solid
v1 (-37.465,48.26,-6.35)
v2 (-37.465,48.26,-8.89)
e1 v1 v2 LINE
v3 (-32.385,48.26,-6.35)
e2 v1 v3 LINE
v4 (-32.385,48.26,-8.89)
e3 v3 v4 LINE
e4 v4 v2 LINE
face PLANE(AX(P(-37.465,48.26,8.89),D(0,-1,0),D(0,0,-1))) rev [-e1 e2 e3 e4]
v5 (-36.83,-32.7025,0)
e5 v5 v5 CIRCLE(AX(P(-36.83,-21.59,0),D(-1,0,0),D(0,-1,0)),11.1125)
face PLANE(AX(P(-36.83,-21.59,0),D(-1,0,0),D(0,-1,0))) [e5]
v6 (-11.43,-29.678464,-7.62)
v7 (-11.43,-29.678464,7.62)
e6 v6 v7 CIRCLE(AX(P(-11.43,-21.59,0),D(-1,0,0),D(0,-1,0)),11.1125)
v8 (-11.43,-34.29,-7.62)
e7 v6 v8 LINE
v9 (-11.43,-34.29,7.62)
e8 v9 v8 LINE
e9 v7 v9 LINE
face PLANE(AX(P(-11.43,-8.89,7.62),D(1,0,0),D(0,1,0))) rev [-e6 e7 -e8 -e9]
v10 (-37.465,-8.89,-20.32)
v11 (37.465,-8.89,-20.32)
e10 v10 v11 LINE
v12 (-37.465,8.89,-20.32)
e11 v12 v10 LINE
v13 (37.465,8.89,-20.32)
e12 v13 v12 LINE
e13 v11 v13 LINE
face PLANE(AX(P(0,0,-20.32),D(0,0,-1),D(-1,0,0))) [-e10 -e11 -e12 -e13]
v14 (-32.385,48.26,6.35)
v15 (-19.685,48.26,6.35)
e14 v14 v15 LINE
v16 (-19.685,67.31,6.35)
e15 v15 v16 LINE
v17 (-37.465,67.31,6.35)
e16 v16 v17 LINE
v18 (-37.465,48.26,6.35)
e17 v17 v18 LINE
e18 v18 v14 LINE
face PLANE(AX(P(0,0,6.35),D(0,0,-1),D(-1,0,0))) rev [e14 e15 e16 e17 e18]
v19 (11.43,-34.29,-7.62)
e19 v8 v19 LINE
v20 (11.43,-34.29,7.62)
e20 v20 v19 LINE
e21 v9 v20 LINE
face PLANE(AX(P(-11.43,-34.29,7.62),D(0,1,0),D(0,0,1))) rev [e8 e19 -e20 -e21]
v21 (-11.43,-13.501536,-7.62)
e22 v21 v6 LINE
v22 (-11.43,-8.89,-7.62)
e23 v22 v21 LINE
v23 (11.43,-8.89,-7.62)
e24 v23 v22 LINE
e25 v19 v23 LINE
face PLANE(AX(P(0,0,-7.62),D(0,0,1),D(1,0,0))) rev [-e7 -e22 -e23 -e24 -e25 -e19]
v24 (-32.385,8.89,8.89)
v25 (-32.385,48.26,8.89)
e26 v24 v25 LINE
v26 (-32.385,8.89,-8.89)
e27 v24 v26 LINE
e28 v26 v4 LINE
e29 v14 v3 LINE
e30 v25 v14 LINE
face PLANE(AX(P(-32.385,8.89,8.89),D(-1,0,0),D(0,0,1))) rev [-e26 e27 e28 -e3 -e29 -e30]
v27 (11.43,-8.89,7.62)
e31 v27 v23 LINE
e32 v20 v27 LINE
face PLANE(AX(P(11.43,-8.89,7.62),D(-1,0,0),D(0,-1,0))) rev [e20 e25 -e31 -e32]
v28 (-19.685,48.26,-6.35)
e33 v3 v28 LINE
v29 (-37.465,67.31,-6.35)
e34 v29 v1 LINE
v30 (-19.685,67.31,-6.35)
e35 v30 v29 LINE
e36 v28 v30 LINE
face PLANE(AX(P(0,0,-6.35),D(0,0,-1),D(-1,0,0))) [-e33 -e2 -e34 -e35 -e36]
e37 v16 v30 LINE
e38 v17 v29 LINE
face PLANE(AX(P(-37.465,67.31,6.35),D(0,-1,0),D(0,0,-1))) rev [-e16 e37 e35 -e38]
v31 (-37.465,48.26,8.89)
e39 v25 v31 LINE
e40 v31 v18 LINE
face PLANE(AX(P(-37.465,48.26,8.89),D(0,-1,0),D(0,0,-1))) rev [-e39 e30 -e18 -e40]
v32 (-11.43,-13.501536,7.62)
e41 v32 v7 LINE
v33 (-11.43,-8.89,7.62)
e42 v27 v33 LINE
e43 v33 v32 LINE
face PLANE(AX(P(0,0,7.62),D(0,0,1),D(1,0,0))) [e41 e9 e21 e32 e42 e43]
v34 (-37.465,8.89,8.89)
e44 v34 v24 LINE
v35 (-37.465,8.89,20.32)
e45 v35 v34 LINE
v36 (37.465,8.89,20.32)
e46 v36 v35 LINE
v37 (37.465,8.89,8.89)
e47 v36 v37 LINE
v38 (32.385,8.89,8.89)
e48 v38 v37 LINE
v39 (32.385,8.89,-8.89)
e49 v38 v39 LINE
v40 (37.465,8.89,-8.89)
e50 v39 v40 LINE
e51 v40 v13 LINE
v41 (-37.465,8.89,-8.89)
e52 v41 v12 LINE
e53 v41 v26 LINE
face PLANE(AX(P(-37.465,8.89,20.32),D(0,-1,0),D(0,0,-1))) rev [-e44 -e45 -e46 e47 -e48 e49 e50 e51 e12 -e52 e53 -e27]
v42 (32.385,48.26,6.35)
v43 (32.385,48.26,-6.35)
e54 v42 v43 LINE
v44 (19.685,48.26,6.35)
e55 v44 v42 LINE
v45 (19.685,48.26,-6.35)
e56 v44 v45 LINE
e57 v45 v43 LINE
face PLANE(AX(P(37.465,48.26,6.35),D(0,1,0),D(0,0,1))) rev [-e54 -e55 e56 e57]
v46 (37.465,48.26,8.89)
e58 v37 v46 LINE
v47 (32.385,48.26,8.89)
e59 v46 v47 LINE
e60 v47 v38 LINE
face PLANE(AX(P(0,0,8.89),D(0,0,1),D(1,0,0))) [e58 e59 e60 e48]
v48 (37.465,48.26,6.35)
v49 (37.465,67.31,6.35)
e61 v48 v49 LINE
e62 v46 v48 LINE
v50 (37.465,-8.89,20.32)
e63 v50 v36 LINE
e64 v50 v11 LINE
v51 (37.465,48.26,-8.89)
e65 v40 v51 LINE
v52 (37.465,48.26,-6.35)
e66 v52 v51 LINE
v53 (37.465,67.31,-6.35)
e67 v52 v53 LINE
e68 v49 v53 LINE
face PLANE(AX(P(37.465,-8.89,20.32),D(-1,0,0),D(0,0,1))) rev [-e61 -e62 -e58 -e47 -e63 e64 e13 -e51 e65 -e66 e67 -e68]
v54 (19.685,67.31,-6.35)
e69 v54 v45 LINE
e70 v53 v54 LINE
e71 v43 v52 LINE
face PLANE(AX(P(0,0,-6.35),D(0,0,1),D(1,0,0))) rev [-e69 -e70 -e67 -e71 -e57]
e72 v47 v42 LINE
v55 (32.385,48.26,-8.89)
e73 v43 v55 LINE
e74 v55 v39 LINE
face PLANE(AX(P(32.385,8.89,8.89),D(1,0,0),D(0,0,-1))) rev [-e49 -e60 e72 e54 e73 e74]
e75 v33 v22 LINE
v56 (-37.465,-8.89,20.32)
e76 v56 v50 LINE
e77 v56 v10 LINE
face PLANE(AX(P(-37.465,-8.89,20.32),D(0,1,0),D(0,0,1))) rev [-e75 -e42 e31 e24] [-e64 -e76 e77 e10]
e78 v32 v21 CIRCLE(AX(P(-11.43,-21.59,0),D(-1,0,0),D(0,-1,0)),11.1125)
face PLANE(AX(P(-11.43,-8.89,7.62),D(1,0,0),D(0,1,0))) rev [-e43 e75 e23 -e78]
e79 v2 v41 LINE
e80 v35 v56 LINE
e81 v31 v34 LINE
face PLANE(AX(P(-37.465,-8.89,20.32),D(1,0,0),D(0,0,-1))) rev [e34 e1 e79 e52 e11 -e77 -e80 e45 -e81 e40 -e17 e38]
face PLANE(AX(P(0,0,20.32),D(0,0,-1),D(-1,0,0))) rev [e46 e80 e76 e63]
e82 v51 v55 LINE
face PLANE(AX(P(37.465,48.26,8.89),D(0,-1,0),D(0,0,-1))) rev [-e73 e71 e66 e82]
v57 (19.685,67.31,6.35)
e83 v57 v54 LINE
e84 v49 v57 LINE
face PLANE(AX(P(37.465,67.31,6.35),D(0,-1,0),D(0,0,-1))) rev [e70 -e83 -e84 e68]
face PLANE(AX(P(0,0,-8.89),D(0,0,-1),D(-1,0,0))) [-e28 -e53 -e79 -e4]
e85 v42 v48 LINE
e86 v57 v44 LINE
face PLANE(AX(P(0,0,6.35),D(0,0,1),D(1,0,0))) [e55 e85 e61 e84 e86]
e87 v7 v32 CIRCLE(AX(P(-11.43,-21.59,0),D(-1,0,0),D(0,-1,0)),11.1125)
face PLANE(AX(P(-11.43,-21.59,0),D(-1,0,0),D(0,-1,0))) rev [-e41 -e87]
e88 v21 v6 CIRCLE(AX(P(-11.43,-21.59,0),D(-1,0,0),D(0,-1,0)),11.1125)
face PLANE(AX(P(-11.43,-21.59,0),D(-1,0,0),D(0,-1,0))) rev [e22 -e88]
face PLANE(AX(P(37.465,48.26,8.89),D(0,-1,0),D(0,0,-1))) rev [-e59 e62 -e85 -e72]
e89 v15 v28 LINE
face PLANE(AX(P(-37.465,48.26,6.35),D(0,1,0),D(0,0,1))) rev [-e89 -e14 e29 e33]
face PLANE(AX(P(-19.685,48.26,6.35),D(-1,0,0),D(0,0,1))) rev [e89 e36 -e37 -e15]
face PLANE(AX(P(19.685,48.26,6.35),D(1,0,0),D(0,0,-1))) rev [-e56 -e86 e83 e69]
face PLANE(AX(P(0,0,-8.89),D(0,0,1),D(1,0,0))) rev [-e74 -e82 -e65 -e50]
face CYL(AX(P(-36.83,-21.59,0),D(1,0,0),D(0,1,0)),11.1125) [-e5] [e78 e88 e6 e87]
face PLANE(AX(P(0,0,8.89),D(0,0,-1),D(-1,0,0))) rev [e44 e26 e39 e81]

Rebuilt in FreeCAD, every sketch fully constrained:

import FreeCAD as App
import Part
import Sketcher
Q = App.Units.Quantity


def add_polygon(sketch, points):
    """Adds a closed chain of lines whose ends are joined by coincident constraints."""
    first, n = sketch.GeometryCount, len(points)
    for a, b in zip(points, points[1:] + points[:1]):
        sketch.addGeometry(Part.LineSegment(App.Vector(*a, 0), App.Vector(*b, 0)), False)
    for i in range(n):
        sketch.addConstraint(Sketcher.Constraint("Coincident", first + i, 2, first + (i + 1) % n, 1))

doc = App.newDocument("Part")
params = doc.addObject("Spreadsheet::Sheet", "Params")
for row, (alias, value) in enumerate([
    ("sketch1_height", "0.7 in"),
    ("sketch1_width", "2.95 in"),
    ("pad1_length", "1.6 in"),
    ("sketch2_width", "0.2 in"),
    ("sketch2_height", "1.55 in"),
    ("pad2_length", "0.7 in"),
    ("sketch3_width", "0.7 in"),
    ("sketch3_height", "0.75 in"),
    ("pad3_length", "0.5 in"),
    ("sketch4_height", "1 in"),
    ("sketch4_width", "0.9 in"),
    ("pad4_length", "0.6 in"),
    ("sketch5_diameter", "0.875 in"),
    ("pad5_length", "1 in"),
], start=1):
    params.set(f"A{row}", alias)
    params.set(f"B{row}", "=" + value)
    params.setAlias(f"B{row}", alias)

body = doc.addObject("PartDesign::Body", "Body")

# Sketch on XY plane
sketch1 = doc.addObject("Sketcher::SketchObject", "Sketch")
body.addObject(sketch1)
sketch1.AttachmentSupport = (doc.XY_Plane, [""])
sketch1.MapMode = "FlatFace"
add_polygon(sketch1, [(-37, 9), (-37, -9), (37, -9), (37, 9)])  # lines 0-3
sketch1.addConstraint(Sketcher.Constraint("Vertical", 0))
sketch1.addConstraint(Sketcher.Constraint("Horizontal", 1))
sketch1.addConstraint(Sketcher.Constraint("Vertical", 2))
sketch1.addConstraint(Sketcher.Constraint("Horizontal", 3))
sketch1.addConstraint(Sketcher.Constraint("Symmetric", 0, 2, 2, 2, -1, 1))
sketch1.addConstraint(Sketcher.Constraint("DistanceY", 0, 2, 0, 1, Q("0.7 in")))
sketch1.addConstraint(Sketcher.Constraint("DistanceX", 1, 1, 1, 2, Q("2.95 in")))
sketch1.setExpression("Constraints[9]", "Params.sketch1_height")
sketch1.setExpression("Constraints[10]", "Params.sketch1_width")
pad1 = doc.addObject("PartDesign::Pad", "Pad")
body.addObject(pad1)
pad1.Profile = sketch1
pad1.setExpression("Length", "Params.pad1_length")
pad1.Midplane = True

# Sketch on XY plane
sketch2 = doc.addObject("Sketcher::SketchObject", "Sketch001")
body.addObject(sketch2)
sketch2.AttachmentSupport = (doc.XY_Plane, [""])
sketch2.MapMode = "FlatFace"
add_polygon(sketch2, [(-37, 48), (-37, 9), (-32, 9), (-32, 48)])  # lines 0-3
add_polygon(sketch2, [(32, 48), (32, 9), (37, 9), (37, 48)])  # lines 4-7
sketch2.addConstraint(Sketcher.Constraint("Vertical", 0))
sketch2.addConstraint(Sketcher.Constraint("Horizontal", 1))
sketch2.addConstraint(Sketcher.Constraint("Vertical", 2))
sketch2.addConstraint(Sketcher.Constraint("Horizontal", 3))
sketch2.addConstraint(Sketcher.Constraint("Vertical", 4))
sketch2.addConstraint(Sketcher.Constraint("Horizontal", 5))
sketch2.addConstraint(Sketcher.Constraint("Vertical", 6))
sketch2.addConstraint(Sketcher.Constraint("Horizontal", 7))
sketch2.addConstraint(Sketcher.Constraint("Symmetric", 1, 2, 4, 2, -2))
sketch2.addConstraint(Sketcher.Constraint("Symmetric", 3, 2, 6, 2, -2))
sketch2.addConstraint(Sketcher.Constraint("DistanceX", 1, 1, 1, 2, Q("0.2 in")))
sketch2.addConstraint(Sketcher.Constraint("DistanceY", 0, 2, 0, 1, Q("1.55 in")))
sketch2.addConstraint(Sketcher.Constraint("DistanceY", -1, 1, 2, 2, Q("1.9 in")))
sketch2.addConstraint(Sketcher.Constraint("DistanceX", 1, 2, 4, 2, Q("2.55 in")))
sketch2.setExpression("Constraints[18]", "Params.sketch2_width")
sketch2.setExpression("Constraints[19]", "Params.sketch2_height")
pad2 = doc.addObject("PartDesign::Pad", "Pad001")
body.addObject(pad2)
pad2.Profile = sketch2
pad2.setExpression("Length", "Params.pad2_length")
pad2.Midplane = True

# Sketch on XY plane
sketch3 = doc.addObject("Sketcher::SketchObject", "Sketch002")
body.addObject(sketch3)
sketch3.AttachmentSupport = (doc.XY_Plane, [""])
sketch3.MapMode = "FlatFace"
add_polygon(sketch3, [(20, 67), (20, 48), (37, 48), (37, 67)])  # lines 0-3
add_polygon(sketch3, [(-37, 67), (-37, 48), (-20, 48), (-20, 67)])  # lines 4-7
sketch3.addConstraint(Sketcher.Constraint("Vertical", 0))
sketch3.addConstraint(Sketcher.Constraint("Horizontal", 1))
sketch3.addConstraint(Sketcher.Constraint("Vertical", 2))
sketch3.addConstraint(Sketcher.Constraint("Horizontal", 3))
sketch3.addConstraint(Sketcher.Constraint("Vertical", 4))
sketch3.addConstraint(Sketcher.Constraint("Horizontal", 5))
sketch3.addConstraint(Sketcher.Constraint("Vertical", 6))
sketch3.addConstraint(Sketcher.Constraint("Horizontal", 7))
sketch3.addConstraint(Sketcher.Constraint("Symmetric", 1, 2, 4, 2, -2))
sketch3.addConstraint(Sketcher.Constraint("Symmetric", 3, 2, 6, 2, -2))
sketch3.addConstraint(Sketcher.Constraint("DistanceX", 1, 1, 1, 2, Q("0.7 in")))
sketch3.addConstraint(Sketcher.Constraint("DistanceY", 0, 2, 0, 1, Q("0.75 in")))
sketch3.addConstraint(Sketcher.Constraint("DistanceY", -1, 1, 0, 2, Q("1.9 in")))
sketch3.addConstraint(Sketcher.Constraint("DistanceX", 4, 2, 0, 2, Q("2.25 in")))
sketch3.setExpression("Constraints[18]", "Params.sketch3_width")
sketch3.setExpression("Constraints[19]", "Params.sketch3_height")
pad3 = doc.addObject("PartDesign::Pad", "Pad002")
body.addObject(pad3)
pad3.Profile = sketch3
pad3.setExpression("Length", "Params.pad3_length")
pad3.Midplane = True

# Sketch on XY plane
sketch4 = doc.addObject("Sketcher::SketchObject", "Sketch003")
body.addObject(sketch4)
sketch4.AttachmentSupport = (doc.XY_Plane, [""])
sketch4.MapMode = "FlatFace"
add_polygon(sketch4, [(-11, -9), (-11, -34), (11, -34), (11, -9)])  # lines 0-3
sketch4.addConstraint(Sketcher.Constraint("Vertical", 0))
sketch4.addConstraint(Sketcher.Constraint("Horizontal", 1))
sketch4.addConstraint(Sketcher.Constraint("Vertical", 2))
sketch4.addConstraint(Sketcher.Constraint("Horizontal", 3))
sketch4.addConstraint(Sketcher.Constraint("DistanceY", 0, 2, 0, 1, Q("1 in")))
sketch4.addConstraint(Sketcher.Constraint("DistanceX", 1, 1, 1, 2, Q("0.9 in")))
sketch4.addConstraint(Sketcher.Constraint("DistanceX", 0, 2, -1, 1, Q("0.45 in")))
sketch4.addConstraint(Sketcher.Constraint("DistanceY", 0, 2, -1, 1, Q("1.35 in")))
sketch4.setExpression("Constraints[8]", "Params.sketch4_height")
sketch4.setExpression("Constraints[9]", "Params.sketch4_width")
pad4 = doc.addObject("PartDesign::Pad", "Pad003")
body.addObject(pad4)
pad4.Profile = sketch4
pad4.setExpression("Length", "Params.pad4_length")
pad4.Midplane = True

# Sketch on YZ plane
sketch5 = doc.addObject("Sketcher::SketchObject", "Sketch004")
body.addObject(sketch5)
sketch5.AttachmentSupport = (doc.YZ_Plane, [""])
sketch5.MapMode = "FlatFace"
sketch5.AttachmentOffset = App.Placement(App.Vector(0, 0, -0.45 * 25.4), App.Rotation())
sketch5.addGeometry(Part.Circle(App.Vector(-22, 0, 0), App.Vector(0, 0, 1), 11), False)
sketch5.addConstraint(Sketcher.Constraint("PointOnObject", 0, 3, -1))
sketch5.addConstraint(Sketcher.Constraint("Diameter", 0, Q("0.875 in")))
sketch5.addConstraint(Sketcher.Constraint("DistanceX", 0, 3, -1, 1, Q("0.85 in")))
sketch5.setExpression("Constraints[1]", "Params.sketch5_diameter")
pad5 = doc.addObject("PartDesign::Pad", "Pad004")
body.addObject(pad5)
pad5.Profile = sketch5
pad5.setExpression("Length", "Params.pad5_length")
pad5.Reversed = True

doc.recompute()
